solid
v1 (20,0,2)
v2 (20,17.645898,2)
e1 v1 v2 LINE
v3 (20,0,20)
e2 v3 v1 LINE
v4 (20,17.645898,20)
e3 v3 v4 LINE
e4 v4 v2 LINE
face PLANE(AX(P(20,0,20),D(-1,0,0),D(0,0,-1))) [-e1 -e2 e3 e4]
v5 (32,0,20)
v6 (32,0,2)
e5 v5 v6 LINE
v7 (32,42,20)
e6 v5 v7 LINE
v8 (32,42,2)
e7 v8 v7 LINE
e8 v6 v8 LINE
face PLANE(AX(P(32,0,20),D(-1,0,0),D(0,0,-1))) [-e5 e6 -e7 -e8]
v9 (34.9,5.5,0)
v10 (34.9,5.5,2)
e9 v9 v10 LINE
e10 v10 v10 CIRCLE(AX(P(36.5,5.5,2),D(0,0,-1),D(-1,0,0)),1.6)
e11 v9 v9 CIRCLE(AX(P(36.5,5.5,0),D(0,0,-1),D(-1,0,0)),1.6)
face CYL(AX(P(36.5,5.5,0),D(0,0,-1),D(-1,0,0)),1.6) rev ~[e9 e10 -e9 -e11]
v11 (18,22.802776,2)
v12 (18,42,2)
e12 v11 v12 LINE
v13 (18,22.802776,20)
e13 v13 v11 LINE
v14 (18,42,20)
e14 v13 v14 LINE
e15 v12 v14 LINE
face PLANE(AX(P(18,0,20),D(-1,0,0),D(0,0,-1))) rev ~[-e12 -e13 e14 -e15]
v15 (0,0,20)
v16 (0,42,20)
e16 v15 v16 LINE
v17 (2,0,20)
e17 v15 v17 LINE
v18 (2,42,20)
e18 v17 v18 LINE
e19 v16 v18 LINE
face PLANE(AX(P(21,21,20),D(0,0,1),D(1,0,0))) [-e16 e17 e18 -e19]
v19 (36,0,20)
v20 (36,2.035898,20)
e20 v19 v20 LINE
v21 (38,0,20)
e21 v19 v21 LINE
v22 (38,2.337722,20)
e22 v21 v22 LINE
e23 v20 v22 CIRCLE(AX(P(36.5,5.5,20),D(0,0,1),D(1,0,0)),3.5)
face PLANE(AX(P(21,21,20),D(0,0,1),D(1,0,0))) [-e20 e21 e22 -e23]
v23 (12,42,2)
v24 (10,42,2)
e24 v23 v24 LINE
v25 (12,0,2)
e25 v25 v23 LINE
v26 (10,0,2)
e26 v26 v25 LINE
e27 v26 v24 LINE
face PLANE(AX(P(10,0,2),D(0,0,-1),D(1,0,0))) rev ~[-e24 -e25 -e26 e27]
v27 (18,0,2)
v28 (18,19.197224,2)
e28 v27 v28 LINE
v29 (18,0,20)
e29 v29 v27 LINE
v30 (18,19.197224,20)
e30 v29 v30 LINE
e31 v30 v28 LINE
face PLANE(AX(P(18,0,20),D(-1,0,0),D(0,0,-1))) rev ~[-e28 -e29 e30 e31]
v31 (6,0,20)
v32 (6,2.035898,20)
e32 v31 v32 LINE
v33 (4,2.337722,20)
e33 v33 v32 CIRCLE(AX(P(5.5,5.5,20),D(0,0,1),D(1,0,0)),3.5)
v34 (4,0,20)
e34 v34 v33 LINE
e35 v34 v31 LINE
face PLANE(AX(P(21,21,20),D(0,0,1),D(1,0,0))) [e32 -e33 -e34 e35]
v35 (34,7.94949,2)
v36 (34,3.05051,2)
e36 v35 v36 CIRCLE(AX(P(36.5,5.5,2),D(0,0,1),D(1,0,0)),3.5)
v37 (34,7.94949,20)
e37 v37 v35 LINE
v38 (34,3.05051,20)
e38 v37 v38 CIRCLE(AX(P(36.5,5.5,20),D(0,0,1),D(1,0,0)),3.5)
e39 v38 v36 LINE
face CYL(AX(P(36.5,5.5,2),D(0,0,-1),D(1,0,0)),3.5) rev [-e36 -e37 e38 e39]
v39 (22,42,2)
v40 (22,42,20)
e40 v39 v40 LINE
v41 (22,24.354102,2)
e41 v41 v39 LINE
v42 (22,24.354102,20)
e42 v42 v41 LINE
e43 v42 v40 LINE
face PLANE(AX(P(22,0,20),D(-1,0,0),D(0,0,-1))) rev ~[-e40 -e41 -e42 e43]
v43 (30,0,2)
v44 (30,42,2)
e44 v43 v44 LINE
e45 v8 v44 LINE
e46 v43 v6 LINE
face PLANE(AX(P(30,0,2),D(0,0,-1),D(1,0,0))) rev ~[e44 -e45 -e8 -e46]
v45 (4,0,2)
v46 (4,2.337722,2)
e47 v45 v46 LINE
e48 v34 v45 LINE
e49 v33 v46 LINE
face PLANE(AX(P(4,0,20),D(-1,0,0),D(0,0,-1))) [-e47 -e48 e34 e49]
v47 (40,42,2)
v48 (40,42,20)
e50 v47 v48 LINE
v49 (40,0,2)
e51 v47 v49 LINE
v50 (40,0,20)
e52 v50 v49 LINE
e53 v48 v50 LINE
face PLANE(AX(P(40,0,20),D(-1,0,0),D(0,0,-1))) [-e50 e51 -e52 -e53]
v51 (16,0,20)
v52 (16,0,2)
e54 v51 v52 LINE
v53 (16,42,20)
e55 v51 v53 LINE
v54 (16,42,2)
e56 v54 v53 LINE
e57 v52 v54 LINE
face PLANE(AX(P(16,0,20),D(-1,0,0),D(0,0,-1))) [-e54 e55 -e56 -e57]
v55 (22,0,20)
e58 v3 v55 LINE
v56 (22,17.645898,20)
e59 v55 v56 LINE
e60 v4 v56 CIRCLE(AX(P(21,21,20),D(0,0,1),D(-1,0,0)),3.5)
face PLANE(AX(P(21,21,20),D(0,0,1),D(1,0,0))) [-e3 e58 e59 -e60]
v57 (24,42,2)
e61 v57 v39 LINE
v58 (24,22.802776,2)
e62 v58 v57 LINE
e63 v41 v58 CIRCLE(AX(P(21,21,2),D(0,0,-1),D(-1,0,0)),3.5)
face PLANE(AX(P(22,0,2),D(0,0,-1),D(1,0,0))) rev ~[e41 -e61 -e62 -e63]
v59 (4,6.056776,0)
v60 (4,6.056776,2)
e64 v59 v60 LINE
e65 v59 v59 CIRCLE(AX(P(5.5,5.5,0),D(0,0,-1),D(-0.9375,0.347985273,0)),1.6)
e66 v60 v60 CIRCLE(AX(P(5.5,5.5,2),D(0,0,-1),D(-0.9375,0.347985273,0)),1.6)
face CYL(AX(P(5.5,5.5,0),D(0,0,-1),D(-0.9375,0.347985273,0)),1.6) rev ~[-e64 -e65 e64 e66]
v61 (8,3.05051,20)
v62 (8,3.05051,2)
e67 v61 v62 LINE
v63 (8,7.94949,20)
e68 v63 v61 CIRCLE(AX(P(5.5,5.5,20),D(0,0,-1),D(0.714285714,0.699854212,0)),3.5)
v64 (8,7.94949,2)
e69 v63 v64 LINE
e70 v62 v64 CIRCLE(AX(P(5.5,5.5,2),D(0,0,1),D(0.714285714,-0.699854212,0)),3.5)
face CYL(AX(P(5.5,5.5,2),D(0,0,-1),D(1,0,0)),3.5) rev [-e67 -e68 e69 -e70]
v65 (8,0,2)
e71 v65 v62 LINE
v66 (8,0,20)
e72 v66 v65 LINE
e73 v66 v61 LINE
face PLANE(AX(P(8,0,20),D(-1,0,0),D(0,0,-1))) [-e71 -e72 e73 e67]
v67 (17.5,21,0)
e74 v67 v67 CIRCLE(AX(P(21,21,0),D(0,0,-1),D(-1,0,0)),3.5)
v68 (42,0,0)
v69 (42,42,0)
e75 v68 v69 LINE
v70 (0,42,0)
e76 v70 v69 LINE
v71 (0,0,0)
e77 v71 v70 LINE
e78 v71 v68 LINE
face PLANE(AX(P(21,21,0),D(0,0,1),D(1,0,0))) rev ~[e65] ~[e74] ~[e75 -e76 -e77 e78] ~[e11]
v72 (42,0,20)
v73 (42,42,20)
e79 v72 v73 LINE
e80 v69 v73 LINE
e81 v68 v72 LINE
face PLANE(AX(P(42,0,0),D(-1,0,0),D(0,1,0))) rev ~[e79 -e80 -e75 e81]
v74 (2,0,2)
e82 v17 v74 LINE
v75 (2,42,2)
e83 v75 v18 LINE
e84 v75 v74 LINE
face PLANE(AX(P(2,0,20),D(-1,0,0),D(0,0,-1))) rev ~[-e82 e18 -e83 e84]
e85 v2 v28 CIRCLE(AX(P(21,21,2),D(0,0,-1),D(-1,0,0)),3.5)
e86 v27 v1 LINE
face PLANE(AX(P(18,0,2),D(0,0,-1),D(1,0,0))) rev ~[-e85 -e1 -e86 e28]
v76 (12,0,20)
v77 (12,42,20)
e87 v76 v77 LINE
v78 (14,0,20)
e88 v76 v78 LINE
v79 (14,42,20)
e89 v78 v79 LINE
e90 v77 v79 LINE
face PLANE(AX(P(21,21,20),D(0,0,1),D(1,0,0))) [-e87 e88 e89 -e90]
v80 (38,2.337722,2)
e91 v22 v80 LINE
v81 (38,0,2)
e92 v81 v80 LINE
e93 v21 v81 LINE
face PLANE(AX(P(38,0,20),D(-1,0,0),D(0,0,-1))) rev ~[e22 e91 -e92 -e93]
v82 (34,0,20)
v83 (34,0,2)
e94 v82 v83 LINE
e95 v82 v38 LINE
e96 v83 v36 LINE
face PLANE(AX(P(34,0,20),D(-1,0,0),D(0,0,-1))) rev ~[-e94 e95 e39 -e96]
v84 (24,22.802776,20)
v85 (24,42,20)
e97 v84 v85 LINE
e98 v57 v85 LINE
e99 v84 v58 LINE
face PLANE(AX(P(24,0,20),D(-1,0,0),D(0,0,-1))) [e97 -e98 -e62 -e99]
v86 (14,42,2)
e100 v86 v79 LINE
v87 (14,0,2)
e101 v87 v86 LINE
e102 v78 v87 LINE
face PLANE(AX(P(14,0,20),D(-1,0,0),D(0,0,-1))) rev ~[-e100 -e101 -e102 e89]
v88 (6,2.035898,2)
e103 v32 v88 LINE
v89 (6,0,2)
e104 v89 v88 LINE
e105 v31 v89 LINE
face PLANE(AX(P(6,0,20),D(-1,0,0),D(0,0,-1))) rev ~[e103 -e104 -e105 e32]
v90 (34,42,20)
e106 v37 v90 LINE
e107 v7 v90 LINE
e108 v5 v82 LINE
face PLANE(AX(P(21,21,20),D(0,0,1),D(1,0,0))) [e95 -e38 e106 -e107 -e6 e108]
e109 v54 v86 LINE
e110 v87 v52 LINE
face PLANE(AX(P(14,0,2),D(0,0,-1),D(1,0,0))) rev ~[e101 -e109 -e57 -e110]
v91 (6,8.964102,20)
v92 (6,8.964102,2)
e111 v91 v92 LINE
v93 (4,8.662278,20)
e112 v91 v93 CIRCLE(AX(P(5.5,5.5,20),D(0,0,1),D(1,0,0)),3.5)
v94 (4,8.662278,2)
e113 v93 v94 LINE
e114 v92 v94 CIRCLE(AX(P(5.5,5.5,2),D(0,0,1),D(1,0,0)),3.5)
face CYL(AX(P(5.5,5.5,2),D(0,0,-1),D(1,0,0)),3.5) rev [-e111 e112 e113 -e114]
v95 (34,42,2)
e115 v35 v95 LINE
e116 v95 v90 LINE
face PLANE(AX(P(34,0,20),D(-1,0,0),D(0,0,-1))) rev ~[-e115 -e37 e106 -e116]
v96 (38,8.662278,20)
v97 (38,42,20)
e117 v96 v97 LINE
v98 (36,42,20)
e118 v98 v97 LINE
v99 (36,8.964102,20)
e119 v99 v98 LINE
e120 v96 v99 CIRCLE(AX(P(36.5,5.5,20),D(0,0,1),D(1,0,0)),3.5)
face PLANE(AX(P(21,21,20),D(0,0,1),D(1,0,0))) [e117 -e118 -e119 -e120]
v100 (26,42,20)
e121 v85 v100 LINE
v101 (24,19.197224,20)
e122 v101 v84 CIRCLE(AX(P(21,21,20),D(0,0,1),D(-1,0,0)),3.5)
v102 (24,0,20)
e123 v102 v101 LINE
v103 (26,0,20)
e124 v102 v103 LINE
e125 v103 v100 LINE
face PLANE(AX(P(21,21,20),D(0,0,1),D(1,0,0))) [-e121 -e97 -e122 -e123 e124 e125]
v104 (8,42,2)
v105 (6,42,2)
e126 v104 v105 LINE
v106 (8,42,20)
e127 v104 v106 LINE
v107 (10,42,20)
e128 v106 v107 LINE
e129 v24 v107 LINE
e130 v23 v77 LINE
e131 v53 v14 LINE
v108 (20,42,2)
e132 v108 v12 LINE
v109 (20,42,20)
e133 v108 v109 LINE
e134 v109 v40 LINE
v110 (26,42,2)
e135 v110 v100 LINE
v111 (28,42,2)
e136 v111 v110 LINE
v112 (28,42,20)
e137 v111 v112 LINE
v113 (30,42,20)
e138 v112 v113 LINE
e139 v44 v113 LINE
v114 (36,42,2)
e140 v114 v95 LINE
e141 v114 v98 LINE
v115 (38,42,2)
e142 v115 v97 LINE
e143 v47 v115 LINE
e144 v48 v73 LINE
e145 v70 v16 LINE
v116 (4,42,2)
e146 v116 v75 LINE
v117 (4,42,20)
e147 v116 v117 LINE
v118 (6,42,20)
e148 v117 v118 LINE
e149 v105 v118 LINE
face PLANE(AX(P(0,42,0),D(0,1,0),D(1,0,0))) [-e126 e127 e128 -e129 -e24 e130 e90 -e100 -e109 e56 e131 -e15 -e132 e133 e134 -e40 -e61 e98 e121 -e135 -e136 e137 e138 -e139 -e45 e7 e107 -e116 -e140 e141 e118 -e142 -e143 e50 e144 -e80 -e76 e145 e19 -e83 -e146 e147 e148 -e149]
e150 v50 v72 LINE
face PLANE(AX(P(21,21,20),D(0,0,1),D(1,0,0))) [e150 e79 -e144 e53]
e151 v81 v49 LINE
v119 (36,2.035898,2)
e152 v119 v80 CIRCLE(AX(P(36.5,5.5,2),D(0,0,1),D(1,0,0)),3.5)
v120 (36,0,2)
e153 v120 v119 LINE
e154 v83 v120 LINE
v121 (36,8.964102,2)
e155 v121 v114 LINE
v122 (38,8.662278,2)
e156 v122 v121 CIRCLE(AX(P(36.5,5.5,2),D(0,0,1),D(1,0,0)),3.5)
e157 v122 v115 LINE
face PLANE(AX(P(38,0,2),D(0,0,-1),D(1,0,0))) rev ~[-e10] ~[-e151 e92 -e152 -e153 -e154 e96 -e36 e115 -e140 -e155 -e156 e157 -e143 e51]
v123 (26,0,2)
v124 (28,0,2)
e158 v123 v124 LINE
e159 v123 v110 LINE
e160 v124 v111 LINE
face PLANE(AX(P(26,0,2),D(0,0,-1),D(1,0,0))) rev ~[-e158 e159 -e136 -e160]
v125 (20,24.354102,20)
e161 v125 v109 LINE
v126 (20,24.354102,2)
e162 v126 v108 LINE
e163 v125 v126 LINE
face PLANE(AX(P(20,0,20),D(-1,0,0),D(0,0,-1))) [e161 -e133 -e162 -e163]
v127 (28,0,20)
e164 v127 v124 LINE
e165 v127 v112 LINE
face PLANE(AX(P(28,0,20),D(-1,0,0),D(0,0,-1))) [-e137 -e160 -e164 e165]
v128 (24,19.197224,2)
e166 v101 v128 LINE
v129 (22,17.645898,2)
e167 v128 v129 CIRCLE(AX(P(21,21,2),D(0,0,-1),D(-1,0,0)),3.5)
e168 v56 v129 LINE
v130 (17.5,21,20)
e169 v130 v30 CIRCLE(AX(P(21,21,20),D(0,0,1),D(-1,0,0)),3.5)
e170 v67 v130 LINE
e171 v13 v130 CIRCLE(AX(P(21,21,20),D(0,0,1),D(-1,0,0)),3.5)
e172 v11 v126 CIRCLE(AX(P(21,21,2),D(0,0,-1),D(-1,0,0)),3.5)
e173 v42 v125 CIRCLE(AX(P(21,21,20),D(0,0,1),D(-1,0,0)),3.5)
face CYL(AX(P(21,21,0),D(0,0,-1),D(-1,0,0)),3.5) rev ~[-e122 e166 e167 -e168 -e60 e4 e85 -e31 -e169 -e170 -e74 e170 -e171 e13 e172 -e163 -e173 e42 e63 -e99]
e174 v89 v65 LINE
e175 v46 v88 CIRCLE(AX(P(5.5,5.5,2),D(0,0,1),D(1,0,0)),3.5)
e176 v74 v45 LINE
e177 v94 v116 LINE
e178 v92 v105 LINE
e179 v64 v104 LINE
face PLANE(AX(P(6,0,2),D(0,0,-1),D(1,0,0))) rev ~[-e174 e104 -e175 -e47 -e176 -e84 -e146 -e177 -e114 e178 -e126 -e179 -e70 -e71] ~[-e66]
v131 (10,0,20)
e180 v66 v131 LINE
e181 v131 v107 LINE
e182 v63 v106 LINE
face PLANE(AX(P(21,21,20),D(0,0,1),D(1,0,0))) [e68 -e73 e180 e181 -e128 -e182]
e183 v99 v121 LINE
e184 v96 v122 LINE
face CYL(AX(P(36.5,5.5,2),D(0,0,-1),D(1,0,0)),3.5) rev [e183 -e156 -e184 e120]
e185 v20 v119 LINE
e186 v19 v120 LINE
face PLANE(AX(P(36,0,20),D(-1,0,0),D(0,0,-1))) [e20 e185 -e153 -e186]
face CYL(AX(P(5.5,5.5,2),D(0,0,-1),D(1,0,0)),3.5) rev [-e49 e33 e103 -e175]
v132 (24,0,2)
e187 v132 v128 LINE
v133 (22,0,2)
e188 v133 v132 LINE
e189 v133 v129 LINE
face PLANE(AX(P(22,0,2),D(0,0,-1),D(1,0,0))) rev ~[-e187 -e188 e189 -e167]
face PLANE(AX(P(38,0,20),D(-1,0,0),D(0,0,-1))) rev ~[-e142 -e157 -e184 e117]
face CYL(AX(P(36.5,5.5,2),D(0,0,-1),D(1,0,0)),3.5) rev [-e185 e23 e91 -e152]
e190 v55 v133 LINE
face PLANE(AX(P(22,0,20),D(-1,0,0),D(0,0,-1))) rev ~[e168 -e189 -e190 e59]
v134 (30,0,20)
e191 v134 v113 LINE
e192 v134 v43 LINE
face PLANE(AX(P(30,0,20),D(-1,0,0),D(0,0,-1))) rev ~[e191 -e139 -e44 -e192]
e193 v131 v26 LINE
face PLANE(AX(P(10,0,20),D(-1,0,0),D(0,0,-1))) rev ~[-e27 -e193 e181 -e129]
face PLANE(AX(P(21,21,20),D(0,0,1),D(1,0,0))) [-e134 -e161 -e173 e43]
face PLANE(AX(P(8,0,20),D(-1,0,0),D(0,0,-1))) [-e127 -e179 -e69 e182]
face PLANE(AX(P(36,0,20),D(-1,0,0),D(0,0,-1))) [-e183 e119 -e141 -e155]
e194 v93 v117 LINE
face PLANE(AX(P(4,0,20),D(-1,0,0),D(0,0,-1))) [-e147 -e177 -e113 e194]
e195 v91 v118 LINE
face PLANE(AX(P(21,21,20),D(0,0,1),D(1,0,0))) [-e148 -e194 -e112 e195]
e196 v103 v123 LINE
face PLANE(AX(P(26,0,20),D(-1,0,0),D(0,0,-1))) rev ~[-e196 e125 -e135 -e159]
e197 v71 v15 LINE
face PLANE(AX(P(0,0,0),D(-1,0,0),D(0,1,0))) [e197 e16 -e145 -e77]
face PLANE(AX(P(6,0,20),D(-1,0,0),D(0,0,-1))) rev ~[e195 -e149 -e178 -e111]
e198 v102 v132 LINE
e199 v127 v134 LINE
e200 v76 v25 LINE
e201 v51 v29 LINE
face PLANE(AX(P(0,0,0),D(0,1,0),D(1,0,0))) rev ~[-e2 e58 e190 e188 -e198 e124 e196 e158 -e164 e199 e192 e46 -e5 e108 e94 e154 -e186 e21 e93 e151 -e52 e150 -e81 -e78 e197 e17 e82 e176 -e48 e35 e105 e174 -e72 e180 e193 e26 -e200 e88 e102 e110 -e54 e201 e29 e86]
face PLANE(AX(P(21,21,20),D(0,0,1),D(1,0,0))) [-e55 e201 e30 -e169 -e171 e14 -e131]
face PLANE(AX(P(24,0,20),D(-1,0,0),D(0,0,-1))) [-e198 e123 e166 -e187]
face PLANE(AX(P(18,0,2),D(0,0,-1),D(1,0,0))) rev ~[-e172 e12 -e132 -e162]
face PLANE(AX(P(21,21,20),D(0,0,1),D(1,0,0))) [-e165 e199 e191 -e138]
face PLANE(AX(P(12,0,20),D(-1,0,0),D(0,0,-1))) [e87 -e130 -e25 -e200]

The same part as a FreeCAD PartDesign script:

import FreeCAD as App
import Part
import Sketcher
Q = App.Units.Quantity


def add_polygon(sketch, points):
    """Adds a closed chain of lines whose ends are joined by coincident constraints."""
    first, n = sketch.GeometryCount, len(points)
    for a, b in zip(points, points[1:] + points[:1]):
        sketch.addGeometry(Part.LineSegment(App.Vector(*a, 0), App.Vector(*b, 0)), False)
    for i in range(n):
        sketch.addConstraint(Sketcher.Constraint("Coincident", first + i, 2, first + (i + 1) % n, 1))

doc = App.newDocument("Part")
body = doc.addObject("PartDesign::Body", "Body")

sketch1 = body.newObject("Sketcher::SketchObject", "Sketch")
sketch1.AttachmentSupport = (doc.getObject("XY_Plane"), [""])
sketch1.MapMode = "FlatFace"
add_polygon(sketch1, [(0, 42), (0, 0), (42, 0), (42, 42)])
sketch1.addConstraint([
    Sketcher.Constraint("Vertical", 0),
    Sketcher.Constraint("Horizontal", 1),
    Sketcher.Constraint("Vertical", 2),
    Sketcher.Constraint("Horizontal", 3),
    Sketcher.Constraint("Coincident", 0, 2, -1, 1),
    Sketcher.Constraint("Equal", 3, 0),
    Sketcher.Constraint("DistanceX", 1, 1, 1, 2, Q("42 mm")),
])
pad1 = body.newObject("PartDesign::Pad", "Pad")
pad1.Profile = sketch1
pad1.Length = 20

sketch2 = body.newObject("Sketcher::SketchObject", "Sketch001")
sketch2.AttachmentSupport = (doc.getObject("XZ_Plane"), [""])
sketch2.MapMode = "FlatFace"
sketch2.AttachmentOffset = App.Placement(App.Vector(0, 0, -42), App.Rotation())
add_polygon(sketch2, [(38, 2), (38, 20), (40, 20), (40, 2)])
add_polygon(sketch2, [(34, 2), (34, 20), (36, 20), (36, 2)])
add_polygon(sketch2, [(2, 2), (2, 20), (4, 20), (4, 2)])
add_polygon(sketch2, [(30, 2), (30, 20), (32, 20), (32, 2)])
add_polygon(sketch2, [(6, 2), (6, 20), (8, 20), (8, 2)])
add_polygon(sketch2, [(26, 2), (26, 20), (28, 20), (28, 2)])
add_polygon(sketch2, [(10, 2), (10, 20), (12, 20), (12, 2)])
add_polygon(sketch2, [(22, 2), (22, 20), (24, 20), (24, 2)])
add_polygon(sketch2, [(14, 2), (14, 20), (16, 20), (16, 2)])
add_polygon(sketch2, [(18, 2), (18, 20), (20, 20), (20, 2)])
sketch2.addConstraint([
    Sketcher.Constraint("Vertical", 0),
    Sketcher.Constraint("Horizontal", 1),
    Sketcher.Constraint("Vertical", 2),
    Sketcher.Constraint("Horizontal", 3),
    Sketcher.Constraint("Vertical", 4),
    Sketcher.Constraint("Horizontal", 5),
    Sketcher.Constraint("Vertical", 6),
    Sketcher.Constraint("Horizontal", 7),
    Sketcher.Constraint("Vertical", 8),
    Sketcher.Constraint("Horizontal", 9),
    Sketcher.Constraint("Vertical", 10),
    Sketcher.Constraint("Horizontal", 11),
    Sketcher.Constraint("Vertical", 12),
    Sketcher.Constraint("Horizontal", 13),
    Sketcher.Constraint("Vertical", 14),
    Sketcher.Constraint("Horizontal", 15),
    Sketcher.Constraint("Vertical", 16),
    Sketcher.Constraint("Horizontal", 17),
    Sketcher.Constraint("Vertical", 18),
    Sketcher.Constraint("Horizontal", 19),
    Sketcher.Constraint("Vertical", 20),
    Sketcher.Constraint("Horizontal", 21),
    Sketcher.Constraint("Vertical", 22),
    Sketcher.Constraint("Horizontal", 23),
    Sketcher.Constraint("Vertical", 24),
    Sketcher.Constraint("Horizontal", 25),
    Sketcher.Constraint("Vertical", 26),
    Sketcher.Constraint("Horizontal", 27),
    Sketcher.Constraint("Vertical", 28),
    Sketcher.Constraint("Horizontal", 29),
    Sketcher.Constraint("Vertical", 30),
    Sketcher.Constraint("Horizontal", 31),
    Sketcher.Constraint("Vertical", 32),
    Sketcher.Constraint("Horizontal", 33),
    Sketcher.Constraint("Vertical", 34),
    Sketcher.Constraint("Horizontal", 35),
    Sketcher.Constraint("Vertical", 36),
    Sketcher.Constraint("Horizontal", 37),
    Sketcher.Constraint("Vertical", 38),
    Sketcher.Constraint("Horizontal", 39),
    Sketcher.Constraint("Horizontal", 1, 2, 4, 2),
    Sketcher.Constraint("Horizontal", 3, 2, 6, 2),
    Sketcher.Constraint("Horizontal", 5, 2, 8, 2),
    Sketcher.Constraint("Horizontal", 7, 2, 10, 2),
    Sketcher.Constraint("Horizontal", 9, 2, 12, 2),
    Sketcher.Constraint("Horizontal", 11, 2, 14, 2),
    Sketcher.Constraint("Horizontal", 13, 2, 16, 2),
    Sketcher.Constraint("Horizontal", 15, 2, 18, 2),
    Sketcher.Constraint("Horizontal", 17, 2, 20, 2),
    Sketcher.Constraint("Horizontal", 19, 2, 22, 2),
    Sketcher.Constraint("Horizontal", 21, 2, 24, 2),
    Sketcher.Constraint("Horizontal", 23, 2, 26, 2),
    Sketcher.Constraint("Horizontal", 25, 2, 28, 2),
    Sketcher.Constraint("Horizontal", 27, 2, 30, 2),
    Sketcher.Constraint("Horizontal", 29, 2, 32, 2),
    Sketcher.Constraint("Horizontal", 31, 2, 34, 2),
    Sketcher.Constraint("Horizontal", 33, 2, 36, 2),
    Sketcher.Constraint("Horizontal", 35, 2, 38, 2),
    Sketcher.Constraint("Equal", 3, 5),
    Sketcher.Constraint("Equal", 7, 9),
    Sketcher.Constraint("Equal", 11, 13),
    Sketcher.Constraint("Equal", 15, 17),
    Sketcher.Constraint("Equal", 19, 21),
    Sketcher.Constraint("Equal", 23, 25),
    Sketcher.Constraint("Equal", 27, 29),
    Sketcher.Constraint("Equal", 31, 33),
    Sketcher.Constraint("Equal", 35, 37),
    Sketcher.Constraint("DistanceX", 1, 1, 1, 2, Q("2 mm")),
    Sketcher.Constraint("DistanceY", 0, 1, 0, 2, Q("18 mm")),
    Sketcher.Constraint("DistanceX", -1, 1, 0, 2, Q("38 mm")),
    Sketcher.Constraint("DistanceY", -1, 1, 0, 2, Q("20 mm")),
    Sketcher.Constraint("DistanceX", -1, 1, 4, 2, Q("34 mm")),
    Sketcher.Constraint("DistanceX", -1, 1, 8, 2, Q("2 mm")),
    Sketcher.Constraint("DistanceX", -1, 1, 12, 2, Q("30 mm")),
    Sketcher.Constraint("DistanceX", -1, 1, 16, 2, Q("6 mm")),
    Sketcher.Constraint("DistanceX", -1, 1, 20, 2, Q("26 mm")),
    Sketcher.Constraint("DistanceX", -1, 1, 24, 2, Q("10 mm")),
    Sketcher.Constraint("DistanceX", -1, 1, 28, 2, Q("22 mm")),
    Sketcher.Constraint("DistanceX", -1, 1, 32, 2, Q("14 mm")),
    Sketcher.Constraint("DistanceX", -1, 1, 36, 2, Q("18 mm")),
])
pocket1 = body.newObject("PartDesign::Pocket", "Pocket")
pocket1.Profile = sketch2
pocket1.Type = "ThroughAll"
pocket1.Midplane = True

sketch3 = body.newObject("Sketcher::SketchObject", "Sketch002")
sketch3.AttachmentSupport = (doc.getObject("XY_Plane"), [""])
sketch3.MapMode = "FlatFace"
sketch3.addGeometry([
    Part.Circle(App.Vector(36.5, 5.5, 0), App.Vector(0, 0, 1), 1.6),
    Part.Circle(App.Vector(5.5, 5.5, 0), App.Vector(0, 0, 1), 1.6),
    Part.Circle(App.Vector(21, 21, 0), App.Vector(0, 0, 1), 3.5),
], False)
sketch3.addConstraint([
    Sketcher.Constraint("Equal", 0, 1),
    Sketcher.Constraint("Horizontal", 0, 3, 1, 3),
    Sketcher.Constraint("Diameter", 2, Q("7 mm")),
    Sketcher.Constraint("Diameter", 0, Q("3.2 mm")),
    Sketcher.Constraint("DistanceX", -1, 1, 2, 3, Q("21 mm")),
    Sketcher.Constraint("DistanceY", -1, 1, 2, 3, Q("21 mm")),
    Sketcher.Constraint("DistanceX", 1, 3, 0, 3, Q("31 mm")),
    Sketcher.Constraint("DistanceX", -1, 1, 0, 3, Q("36.5 mm")),
    Sketcher.Constraint("DistanceY", -1, 1, 0, 3, Q("5.5 mm")),
])
pocket2 = body.newObject("PartDesign::Pocket", "Pocket001")
pocket2.Profile = sketch3
pocket2.Length = 2
pocket2.Reversed = True

sketch4 = body.newObject("Sketcher::SketchObject", "Sketch003")
sketch4.AttachmentSupport = (doc.getObject("XY_Plane"), [""])
sketch4.MapMode = "FlatFace"
sketch4.AttachmentOffset = App.Placement(App.Vector(0, 0, 2), App.Rotation())
sketch4.addGeometry([
    Part.Circle(App.Vector(36.5, 5.5, 0), App.Vector(0, 0, 1), 3.5),
    Part.Circle(App.Vector(5.5, 5.5, 0), App.Vector(0, 0, 1), 3.5),
    Part.Circle(App.Vector(21, 21, 0), App.Vector(0, 0, 1), 3.5),
], False)
sketch4.addConstraint([
    Sketcher.Constraint("Equal", 0, 1),
    Sketcher.Constraint("Equal", 1, 2),
    Sketcher.Constraint("Horizontal", 0, 3, 1, 3),
    Sketcher.Constraint("Diameter", 0, Q("7 mm")),
    Sketcher.Constraint("DistanceX", -1, 1, 2, 3, Q("21 mm")),
    Sketcher.Constraint("DistanceY", -1, 1, 2, 3, Q("21 mm")),
    Sketcher.Constraint("DistanceX", 1, 3, 0, 3, Q("31 mm")),
    Sketcher.Constraint("DistanceX", -1, 1, 0, 3, Q("36.5 mm")),
    Sketcher.Constraint("DistanceY", -1, 1, 0, 3, Q("5.5 mm")),
])
pocket3 = body.newObject("PartDesign::Pocket", "Pocket002")
pocket3.Profile = sketch4
pocket3.Length = 18
pocket3.Reversed = True

doc.recompute()
